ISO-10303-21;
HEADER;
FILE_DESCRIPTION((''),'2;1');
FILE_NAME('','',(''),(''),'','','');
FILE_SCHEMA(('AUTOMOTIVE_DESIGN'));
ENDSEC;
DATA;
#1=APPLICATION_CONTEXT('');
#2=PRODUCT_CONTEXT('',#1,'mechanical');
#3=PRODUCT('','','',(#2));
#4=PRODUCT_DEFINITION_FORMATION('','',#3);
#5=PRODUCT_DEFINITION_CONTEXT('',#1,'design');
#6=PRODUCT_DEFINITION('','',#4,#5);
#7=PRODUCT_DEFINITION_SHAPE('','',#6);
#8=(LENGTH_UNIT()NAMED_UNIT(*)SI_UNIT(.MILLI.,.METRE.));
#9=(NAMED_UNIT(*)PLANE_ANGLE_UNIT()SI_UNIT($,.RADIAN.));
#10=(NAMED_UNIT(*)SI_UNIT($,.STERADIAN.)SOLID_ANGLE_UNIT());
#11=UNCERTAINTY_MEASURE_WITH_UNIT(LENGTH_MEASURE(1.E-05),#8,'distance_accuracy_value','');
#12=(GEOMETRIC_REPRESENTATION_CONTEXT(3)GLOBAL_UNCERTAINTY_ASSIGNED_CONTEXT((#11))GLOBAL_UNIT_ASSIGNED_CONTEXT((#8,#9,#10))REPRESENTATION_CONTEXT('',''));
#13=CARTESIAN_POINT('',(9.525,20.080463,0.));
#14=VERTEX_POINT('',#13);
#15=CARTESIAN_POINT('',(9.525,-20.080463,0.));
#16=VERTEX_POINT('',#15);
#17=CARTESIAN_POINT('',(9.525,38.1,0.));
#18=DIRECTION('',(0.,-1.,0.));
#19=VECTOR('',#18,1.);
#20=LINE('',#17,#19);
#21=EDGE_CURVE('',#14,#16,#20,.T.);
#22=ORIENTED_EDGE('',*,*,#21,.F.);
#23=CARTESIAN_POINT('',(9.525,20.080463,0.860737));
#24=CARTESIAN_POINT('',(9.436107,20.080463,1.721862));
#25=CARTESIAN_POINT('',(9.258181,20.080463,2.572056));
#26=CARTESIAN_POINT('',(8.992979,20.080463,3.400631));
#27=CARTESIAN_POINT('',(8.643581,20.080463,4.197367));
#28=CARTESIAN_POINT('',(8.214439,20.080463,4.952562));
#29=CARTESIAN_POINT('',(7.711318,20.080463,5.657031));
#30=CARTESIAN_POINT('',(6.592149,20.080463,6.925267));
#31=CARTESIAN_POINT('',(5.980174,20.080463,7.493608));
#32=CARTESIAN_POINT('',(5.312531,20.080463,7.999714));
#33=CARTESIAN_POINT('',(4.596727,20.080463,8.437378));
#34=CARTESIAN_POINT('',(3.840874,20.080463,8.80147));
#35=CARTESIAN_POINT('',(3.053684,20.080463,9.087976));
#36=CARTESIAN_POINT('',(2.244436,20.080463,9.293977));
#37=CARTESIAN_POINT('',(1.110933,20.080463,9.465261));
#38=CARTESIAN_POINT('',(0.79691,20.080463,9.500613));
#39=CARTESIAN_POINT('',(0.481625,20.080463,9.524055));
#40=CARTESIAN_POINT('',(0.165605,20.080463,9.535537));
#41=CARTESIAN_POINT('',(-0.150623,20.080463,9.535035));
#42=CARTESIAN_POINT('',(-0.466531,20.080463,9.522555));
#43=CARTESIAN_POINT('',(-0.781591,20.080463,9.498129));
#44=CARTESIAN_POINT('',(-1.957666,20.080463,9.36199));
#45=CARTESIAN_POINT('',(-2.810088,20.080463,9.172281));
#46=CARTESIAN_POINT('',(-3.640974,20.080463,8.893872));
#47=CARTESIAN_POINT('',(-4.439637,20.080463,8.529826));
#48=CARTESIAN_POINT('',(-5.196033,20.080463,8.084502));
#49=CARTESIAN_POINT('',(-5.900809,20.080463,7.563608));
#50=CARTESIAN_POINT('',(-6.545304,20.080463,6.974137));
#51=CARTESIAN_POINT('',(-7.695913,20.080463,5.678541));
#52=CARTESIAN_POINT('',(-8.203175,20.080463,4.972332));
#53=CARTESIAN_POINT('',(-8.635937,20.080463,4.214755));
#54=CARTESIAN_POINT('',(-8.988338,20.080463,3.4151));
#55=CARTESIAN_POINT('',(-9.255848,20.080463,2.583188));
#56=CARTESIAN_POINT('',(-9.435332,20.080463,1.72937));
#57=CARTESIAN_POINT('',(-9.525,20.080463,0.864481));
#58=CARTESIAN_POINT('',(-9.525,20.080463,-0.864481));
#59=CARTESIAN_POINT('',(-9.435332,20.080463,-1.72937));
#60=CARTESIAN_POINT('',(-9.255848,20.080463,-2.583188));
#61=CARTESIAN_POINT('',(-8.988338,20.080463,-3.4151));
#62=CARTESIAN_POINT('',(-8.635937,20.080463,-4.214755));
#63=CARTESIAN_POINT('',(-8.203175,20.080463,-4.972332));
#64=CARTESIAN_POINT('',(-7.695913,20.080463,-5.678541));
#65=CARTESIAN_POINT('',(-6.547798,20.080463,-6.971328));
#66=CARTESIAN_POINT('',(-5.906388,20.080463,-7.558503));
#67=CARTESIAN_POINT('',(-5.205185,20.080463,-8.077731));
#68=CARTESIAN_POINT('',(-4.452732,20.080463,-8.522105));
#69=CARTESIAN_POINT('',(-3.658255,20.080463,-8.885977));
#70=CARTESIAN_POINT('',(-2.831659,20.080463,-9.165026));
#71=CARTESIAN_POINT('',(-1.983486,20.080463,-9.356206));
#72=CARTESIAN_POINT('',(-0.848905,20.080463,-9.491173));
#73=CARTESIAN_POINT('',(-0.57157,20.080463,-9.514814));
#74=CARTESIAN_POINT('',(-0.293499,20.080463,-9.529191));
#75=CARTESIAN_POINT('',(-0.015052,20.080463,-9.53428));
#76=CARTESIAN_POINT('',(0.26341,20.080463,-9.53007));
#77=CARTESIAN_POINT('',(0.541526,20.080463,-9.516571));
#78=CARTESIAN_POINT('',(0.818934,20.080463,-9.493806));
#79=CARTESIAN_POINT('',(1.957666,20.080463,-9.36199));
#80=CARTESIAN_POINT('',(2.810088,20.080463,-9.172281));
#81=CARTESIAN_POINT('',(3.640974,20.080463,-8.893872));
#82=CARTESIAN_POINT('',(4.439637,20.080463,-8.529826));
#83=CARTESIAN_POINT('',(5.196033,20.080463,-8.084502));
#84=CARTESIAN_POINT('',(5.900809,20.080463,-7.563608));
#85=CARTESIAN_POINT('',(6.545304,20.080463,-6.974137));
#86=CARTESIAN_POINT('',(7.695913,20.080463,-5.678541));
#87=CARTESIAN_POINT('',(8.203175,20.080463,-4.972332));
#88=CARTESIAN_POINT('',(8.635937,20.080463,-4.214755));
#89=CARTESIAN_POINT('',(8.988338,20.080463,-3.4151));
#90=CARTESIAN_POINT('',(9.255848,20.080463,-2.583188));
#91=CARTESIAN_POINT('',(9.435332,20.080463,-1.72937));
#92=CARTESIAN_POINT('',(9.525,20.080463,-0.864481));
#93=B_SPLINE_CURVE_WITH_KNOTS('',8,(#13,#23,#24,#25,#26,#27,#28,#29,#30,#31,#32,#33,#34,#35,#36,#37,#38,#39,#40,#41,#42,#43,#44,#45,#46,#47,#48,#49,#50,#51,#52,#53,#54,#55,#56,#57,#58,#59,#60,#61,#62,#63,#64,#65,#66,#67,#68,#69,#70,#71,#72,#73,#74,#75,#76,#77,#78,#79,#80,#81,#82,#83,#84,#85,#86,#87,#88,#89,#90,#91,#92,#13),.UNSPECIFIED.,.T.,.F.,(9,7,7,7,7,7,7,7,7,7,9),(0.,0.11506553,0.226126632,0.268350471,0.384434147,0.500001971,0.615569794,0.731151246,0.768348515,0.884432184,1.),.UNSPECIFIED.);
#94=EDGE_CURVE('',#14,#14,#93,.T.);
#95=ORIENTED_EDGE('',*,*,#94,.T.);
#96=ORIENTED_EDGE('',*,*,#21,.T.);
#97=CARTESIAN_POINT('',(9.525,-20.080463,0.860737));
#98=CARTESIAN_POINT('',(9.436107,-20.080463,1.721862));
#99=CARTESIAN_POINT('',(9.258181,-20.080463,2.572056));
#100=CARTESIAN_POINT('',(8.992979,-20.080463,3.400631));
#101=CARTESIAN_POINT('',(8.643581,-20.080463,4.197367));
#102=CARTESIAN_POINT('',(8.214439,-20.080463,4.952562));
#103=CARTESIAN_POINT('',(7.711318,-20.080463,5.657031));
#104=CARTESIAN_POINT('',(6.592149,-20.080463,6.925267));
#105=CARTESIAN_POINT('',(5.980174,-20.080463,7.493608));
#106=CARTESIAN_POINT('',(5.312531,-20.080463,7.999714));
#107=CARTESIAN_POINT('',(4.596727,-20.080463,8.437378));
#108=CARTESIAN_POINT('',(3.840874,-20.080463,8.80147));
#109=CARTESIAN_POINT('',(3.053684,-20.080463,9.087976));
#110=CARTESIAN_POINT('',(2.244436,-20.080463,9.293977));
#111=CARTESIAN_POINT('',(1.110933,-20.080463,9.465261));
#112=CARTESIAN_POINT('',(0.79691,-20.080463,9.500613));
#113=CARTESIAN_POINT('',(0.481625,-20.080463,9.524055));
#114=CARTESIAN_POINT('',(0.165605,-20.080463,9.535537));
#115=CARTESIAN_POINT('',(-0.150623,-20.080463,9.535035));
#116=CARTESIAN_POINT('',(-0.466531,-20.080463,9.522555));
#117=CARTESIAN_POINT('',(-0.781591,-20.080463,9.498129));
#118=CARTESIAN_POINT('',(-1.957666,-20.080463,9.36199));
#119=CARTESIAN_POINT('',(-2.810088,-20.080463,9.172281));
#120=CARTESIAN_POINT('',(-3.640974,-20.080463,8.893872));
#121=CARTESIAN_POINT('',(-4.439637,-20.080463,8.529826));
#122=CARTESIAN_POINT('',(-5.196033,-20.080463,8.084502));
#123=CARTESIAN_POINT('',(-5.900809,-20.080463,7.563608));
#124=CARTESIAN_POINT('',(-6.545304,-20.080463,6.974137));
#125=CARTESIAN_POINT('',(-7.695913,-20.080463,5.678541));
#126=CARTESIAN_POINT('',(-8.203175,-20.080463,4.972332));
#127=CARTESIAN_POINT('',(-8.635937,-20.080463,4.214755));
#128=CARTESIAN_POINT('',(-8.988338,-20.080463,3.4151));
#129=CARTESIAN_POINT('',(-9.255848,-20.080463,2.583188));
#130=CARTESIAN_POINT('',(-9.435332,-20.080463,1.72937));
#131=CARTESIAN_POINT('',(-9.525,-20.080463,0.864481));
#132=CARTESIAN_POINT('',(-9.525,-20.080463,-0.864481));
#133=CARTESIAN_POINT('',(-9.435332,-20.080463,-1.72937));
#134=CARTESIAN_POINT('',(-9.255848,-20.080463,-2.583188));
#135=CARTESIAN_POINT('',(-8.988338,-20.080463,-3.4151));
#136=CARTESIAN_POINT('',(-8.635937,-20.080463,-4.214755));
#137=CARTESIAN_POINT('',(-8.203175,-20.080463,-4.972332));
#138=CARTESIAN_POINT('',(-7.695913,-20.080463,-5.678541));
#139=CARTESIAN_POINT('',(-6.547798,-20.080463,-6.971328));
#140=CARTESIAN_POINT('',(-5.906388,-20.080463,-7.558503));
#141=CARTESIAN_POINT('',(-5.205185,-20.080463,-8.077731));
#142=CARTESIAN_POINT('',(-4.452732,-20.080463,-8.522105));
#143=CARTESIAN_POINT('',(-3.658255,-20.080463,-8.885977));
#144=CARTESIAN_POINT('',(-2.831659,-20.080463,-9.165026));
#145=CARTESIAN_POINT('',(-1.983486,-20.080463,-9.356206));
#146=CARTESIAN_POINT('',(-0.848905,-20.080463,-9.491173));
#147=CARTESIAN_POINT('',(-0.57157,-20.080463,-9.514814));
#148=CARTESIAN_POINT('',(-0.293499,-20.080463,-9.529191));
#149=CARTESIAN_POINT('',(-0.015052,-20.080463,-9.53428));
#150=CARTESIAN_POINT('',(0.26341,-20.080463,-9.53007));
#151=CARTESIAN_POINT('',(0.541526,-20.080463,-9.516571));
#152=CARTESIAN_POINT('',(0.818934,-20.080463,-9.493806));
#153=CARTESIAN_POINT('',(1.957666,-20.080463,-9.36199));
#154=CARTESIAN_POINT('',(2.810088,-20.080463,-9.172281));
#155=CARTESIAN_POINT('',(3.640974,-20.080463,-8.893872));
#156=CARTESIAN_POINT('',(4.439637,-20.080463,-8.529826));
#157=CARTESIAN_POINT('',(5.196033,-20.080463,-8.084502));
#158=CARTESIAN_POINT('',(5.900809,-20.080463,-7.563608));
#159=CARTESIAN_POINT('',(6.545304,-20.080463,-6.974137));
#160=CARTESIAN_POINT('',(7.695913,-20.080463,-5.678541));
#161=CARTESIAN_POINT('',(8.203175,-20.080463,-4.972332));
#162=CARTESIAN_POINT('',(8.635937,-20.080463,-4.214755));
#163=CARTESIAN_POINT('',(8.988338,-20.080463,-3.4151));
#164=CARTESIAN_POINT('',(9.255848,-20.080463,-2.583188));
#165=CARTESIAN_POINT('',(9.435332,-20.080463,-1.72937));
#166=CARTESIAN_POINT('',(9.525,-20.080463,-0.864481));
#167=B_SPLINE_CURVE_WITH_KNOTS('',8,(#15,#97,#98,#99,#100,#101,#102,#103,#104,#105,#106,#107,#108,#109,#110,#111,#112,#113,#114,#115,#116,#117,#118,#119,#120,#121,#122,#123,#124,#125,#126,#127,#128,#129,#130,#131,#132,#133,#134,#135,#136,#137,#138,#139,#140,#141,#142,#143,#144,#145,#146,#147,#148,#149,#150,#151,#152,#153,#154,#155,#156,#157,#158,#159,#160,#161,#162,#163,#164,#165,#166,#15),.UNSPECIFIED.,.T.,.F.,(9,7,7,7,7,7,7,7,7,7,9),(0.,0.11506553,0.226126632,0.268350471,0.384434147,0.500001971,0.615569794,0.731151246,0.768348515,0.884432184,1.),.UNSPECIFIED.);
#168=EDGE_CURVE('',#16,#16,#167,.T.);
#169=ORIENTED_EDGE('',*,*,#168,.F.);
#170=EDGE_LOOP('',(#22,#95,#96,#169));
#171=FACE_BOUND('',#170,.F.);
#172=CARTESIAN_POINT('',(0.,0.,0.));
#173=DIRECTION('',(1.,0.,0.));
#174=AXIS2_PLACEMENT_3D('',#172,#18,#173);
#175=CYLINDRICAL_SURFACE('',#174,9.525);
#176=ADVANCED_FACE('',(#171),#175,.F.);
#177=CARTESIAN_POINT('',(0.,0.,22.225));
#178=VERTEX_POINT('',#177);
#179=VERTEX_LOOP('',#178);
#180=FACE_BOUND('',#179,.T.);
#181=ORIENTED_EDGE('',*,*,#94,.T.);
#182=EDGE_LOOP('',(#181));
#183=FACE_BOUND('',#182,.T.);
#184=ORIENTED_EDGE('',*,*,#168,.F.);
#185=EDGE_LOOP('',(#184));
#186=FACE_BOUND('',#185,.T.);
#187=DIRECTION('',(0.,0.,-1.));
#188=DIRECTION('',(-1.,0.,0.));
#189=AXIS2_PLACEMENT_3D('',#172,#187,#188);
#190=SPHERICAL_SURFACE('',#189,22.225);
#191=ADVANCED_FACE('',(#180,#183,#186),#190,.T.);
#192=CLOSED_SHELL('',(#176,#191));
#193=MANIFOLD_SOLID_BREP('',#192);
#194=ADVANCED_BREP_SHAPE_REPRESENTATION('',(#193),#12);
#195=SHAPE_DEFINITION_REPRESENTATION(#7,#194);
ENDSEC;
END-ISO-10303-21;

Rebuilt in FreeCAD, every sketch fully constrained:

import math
import FreeCAD as App
import Part
import Sketcher
from FreeCAD import Vector
Q = App.Units.Quantity

doc = App.newDocument("Part")
params = doc.addObject("Spreadsheet::Sheet", "Params")
for row, (alias, value) in enumerate([
    ("sketch1_radius", "0.875 in"),
    ("revolution_angle", "360 deg"),
    ("sketch2_diameter", "0.75 in"),
    ("pocket1_length", "3 in"),
], start=1):
    params.set(f"A{row}", alias)
    params.set(f"B{row}", "=" + value)
    params.setAlias(f"B{row}", alias)

body = doc.addObject("PartDesign::Body", "Body")

# Sketch on XZ plane
sketch1 = doc.addObject("Sketcher::SketchObject", "Sketch")
body.addObject(sketch1)
sketch1.AttachmentSupport = (doc.XZ_Plane, [""])
sketch1.MapMode = "FlatFace"
sketch1.addGeometry(Part.LineSegment(Vector(0, -22, 0), Vector(0, 22, 0)), False)
sketch1.addGeometry(Part.ArcOfCircle(Part.Circle(Vector(0, 0, 0), Vector(0, 0, 1), 22), math.radians(90), math.radians(270)), False)
sketch1.addConstraint(Sketcher.Constraint("Coincident", 0, 1, 1, 2))
sketch1.addConstraint(Sketcher.Constraint("Coincident", 1, 1, 0, 2))
sketch1.addConstraint(Sketcher.Constraint("Vertical", 0))
sketch1.addConstraint(Sketcher.Constraint("Coincident", 1, 3, -1, 1))
sketch1.addConstraint(Sketcher.Constraint("PointOnObject", 0, 1, -2))
sketch1.addConstraint(Sketcher.Constraint("Radius", 1, Q("0.875 in")))
sketch1.setExpression("Constraints[5]", "Params.sketch1_radius")
revolution = doc.addObject("PartDesign::Revolution", "Revolution")
body.addObject(revolution)
revolution.Profile = sketch1
revolution.ReferenceAxis = (sketch1, ["V_Axis"])
revolution.setExpression("Angle", "Params.revolution_angle")

# Sketch on XZ plane
sketch2 = doc.addObject("Sketcher::SketchObject", "Sketch001")
body.addObject(sketch2)
sketch2.AttachmentSupport = (doc.XZ_Plane, [""])
sketch2.MapMode = "FlatFace"
sketch2.addGeometry(Part.Circle(Vector(0, 0, 0), Vector(0, 0, 1), 10), False)
sketch2.addConstraint(Sketcher.Constraint("Coincident", 0, 3, -1, 1))
sketch2.addConstraint(Sketcher.Constraint("Diameter", 0, Q("0.75 in")))
sketch2.setExpression("Constraints[1]", "Params.sketch2_diameter")
pocket1 = doc.addObject("PartDesign::Pocket", "Pocket")
body.addObject(pocket1)
pocket1.Profile = sketch2
pocket1.setExpression("Length", "Params.pocket1_length")
pocket1.Midplane = True

doc.recompute()
